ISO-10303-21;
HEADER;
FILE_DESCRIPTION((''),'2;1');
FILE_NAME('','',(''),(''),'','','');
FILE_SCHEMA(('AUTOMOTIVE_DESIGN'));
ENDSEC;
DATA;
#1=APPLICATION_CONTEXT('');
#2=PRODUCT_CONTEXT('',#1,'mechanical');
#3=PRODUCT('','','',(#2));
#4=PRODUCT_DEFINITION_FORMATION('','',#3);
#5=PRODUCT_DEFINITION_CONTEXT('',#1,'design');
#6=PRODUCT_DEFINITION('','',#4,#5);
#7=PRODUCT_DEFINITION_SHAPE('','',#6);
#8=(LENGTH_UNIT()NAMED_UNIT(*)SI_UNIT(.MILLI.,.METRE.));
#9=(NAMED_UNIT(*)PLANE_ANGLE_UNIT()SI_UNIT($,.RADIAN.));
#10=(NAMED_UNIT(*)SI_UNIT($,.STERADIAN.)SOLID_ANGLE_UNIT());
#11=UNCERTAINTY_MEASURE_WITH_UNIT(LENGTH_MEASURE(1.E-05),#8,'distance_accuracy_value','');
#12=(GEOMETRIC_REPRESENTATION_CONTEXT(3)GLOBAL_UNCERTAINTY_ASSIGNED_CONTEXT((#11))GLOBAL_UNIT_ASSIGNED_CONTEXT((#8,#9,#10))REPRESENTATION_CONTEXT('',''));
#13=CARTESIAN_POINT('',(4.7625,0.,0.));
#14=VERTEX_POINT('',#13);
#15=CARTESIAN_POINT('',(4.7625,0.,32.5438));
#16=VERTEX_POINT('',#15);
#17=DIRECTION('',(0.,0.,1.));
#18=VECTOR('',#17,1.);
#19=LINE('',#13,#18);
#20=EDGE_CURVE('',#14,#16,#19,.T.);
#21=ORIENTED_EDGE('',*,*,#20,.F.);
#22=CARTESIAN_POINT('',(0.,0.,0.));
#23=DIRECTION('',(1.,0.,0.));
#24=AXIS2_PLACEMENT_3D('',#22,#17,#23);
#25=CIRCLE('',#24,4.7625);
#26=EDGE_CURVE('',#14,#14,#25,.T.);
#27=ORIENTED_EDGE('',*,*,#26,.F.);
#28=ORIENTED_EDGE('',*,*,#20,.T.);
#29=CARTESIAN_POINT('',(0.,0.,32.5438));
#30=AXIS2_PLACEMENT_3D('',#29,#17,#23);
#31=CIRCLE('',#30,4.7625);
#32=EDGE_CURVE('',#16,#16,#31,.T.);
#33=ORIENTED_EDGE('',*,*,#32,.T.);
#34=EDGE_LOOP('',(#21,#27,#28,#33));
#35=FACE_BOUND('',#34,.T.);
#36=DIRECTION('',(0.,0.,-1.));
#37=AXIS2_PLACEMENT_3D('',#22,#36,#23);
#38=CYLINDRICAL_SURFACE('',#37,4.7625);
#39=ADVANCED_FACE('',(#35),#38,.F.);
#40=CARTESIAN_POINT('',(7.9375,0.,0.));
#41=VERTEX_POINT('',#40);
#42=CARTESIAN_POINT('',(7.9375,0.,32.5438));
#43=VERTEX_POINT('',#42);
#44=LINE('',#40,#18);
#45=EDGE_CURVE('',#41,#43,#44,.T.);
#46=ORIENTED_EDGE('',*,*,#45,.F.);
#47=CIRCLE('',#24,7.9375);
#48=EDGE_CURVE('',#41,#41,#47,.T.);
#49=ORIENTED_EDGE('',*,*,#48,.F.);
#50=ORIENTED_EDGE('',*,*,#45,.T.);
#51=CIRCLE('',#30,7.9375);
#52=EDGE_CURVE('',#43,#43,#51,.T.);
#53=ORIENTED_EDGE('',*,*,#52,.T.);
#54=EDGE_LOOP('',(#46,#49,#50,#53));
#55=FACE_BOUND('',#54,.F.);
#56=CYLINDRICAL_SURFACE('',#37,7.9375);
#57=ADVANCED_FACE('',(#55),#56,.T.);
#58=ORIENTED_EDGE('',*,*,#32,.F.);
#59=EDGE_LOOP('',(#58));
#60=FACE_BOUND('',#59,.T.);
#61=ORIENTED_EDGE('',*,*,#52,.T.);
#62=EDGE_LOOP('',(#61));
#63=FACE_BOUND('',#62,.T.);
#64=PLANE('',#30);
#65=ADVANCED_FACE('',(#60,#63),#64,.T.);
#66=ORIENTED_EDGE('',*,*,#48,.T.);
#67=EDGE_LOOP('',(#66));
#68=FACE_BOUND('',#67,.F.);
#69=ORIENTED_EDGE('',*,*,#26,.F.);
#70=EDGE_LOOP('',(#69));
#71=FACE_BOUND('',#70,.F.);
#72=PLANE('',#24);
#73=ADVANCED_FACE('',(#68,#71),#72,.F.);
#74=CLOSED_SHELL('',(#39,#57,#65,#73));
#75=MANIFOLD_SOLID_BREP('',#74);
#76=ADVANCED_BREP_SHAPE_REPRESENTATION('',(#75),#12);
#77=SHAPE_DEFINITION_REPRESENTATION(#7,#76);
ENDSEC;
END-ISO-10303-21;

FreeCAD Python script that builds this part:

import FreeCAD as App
import Part
import Sketcher

V = App.Vector
Q = App.Units.Quantity

doc = App.newDocument("Part")
body = doc.addObject("PartDesign::Body", "Body")

# Sketch on XY plane
sketch1 = body.newObject("Sketcher::SketchObject", "Sketch")
sketch1.AttachmentSupport = (doc.getObject("XY_Plane"), [""])
sketch1.MapMode = "FlatFace"
sketch1.addGeometry(Part.Circle(V(0, 0, 0), V(0, 0, 1), 7.9), False)
sketch1.addGeometry(Part.Circle(V(0, 0, 0), V(0, 0, 1), 4.8), False)
sketch1.addConstraint(Sketcher.Constraint("Coincident", 0, 3, -1, 1))
sketch1.addConstraint(Sketcher.Constraint("Coincident", 1, 3, -1, 1))
sketch1.addConstraint(Sketcher.Constraint("Diameter", 0, Q("0.625 in")))
sketch1.addConstraint(Sketcher.Constraint("Diameter", 1, Q("0.375 in")))
pad1 = body.newObject("PartDesign::Pad", "Pad")
pad1.Profile = sketch1
pad1.Length = Q("1.281252 in")

doc.recompute()
